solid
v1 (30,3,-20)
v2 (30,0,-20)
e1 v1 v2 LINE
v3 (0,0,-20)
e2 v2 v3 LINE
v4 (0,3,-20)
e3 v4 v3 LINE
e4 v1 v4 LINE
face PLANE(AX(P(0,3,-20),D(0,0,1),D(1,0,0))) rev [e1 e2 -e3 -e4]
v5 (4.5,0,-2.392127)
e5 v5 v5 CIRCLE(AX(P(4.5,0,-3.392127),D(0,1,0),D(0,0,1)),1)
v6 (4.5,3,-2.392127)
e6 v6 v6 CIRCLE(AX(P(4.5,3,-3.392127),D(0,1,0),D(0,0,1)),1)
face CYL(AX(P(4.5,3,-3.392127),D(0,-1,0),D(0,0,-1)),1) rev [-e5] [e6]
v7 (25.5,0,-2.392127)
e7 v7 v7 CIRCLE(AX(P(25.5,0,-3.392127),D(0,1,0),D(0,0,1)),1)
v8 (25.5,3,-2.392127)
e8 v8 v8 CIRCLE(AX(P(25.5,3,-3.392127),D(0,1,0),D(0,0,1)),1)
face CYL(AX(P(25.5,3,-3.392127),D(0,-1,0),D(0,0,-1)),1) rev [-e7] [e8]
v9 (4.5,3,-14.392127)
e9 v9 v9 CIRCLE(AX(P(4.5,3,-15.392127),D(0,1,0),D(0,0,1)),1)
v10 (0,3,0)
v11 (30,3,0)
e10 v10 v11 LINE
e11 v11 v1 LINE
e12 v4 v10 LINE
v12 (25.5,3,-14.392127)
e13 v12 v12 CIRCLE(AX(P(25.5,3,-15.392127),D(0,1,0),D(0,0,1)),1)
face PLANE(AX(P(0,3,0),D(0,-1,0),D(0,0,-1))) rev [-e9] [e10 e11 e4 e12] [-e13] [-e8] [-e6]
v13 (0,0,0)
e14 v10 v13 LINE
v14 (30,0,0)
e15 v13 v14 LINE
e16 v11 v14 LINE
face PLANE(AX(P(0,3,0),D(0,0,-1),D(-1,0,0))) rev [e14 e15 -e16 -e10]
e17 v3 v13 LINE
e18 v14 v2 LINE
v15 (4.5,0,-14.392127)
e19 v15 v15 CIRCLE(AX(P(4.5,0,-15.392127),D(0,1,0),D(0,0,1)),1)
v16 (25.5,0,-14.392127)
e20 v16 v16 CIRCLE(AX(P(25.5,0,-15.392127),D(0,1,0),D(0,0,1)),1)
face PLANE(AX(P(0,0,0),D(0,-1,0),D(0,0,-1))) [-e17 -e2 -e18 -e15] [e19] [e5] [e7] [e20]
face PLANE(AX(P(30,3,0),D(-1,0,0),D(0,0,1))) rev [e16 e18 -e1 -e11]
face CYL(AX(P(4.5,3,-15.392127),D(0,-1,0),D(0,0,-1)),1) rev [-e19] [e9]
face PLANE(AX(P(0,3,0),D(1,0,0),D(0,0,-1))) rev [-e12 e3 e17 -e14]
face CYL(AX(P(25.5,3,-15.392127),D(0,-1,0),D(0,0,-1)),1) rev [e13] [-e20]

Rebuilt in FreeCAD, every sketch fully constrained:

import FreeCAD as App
import Part
import Sketcher
Q = App.Units.Quantity


def add_polygon(sketch, points):
    """Adds a closed chain of lines whose ends are joined by coincident constraints."""
    first, n = sketch.GeometryCount, len(points)
    for a, b in zip(points, points[1:] + points[:1]):
        sketch.addGeometry(Part.LineSegment(App.Vector(*a, 0), App.Vector(*b, 0)), False)
    for i in range(n):
        sketch.addConstraint(Sketcher.Constraint("Coincident", first + i, 2, first + (i + 1) % n, 1))

doc = App.newDocument("Part")
body = doc.addObject("PartDesign::Body", "Body")

sketch1 = body.newObject("Sketcher::SketchObject", "Sketch")
sketch1.AttachmentSupport = (doc.getObject("XZ_Plane"), [""])
sketch1.MapMode = "FlatFace"
add_polygon(sketch1, [(0, -20), (0, 0), (30, 0), (30, -20)])
sketch1.addGeometry(Part.Circle(App.Vector(4.5, -3.4, 0), App.Vector(0, 0, 1), 1), False)
sketch1.addGeometry(Part.Circle(App.Vector(25.5, -3.4, 0), App.Vector(0, 0, 1), 1), False)
sketch1.addGeometry(Part.Circle(App.Vector(4.5, -15.4, 0), App.Vector(0, 0, 1), 1), False)
sketch1.addGeometry(Part.Circle(App.Vector(25.5, -15.4, 0), App.Vector(0, 0, 1), 1), False)
sketch1.addConstraint([
    Sketcher.Constraint("Vertical", 0),
    Sketcher.Constraint("Horizontal", 1),
    Sketcher.Constraint("Vertical", 2),
    Sketcher.Constraint("Horizontal", 3),
    Sketcher.Constraint("Coincident", 0, 2, -1, 1),
    Sketcher.Constraint("Equal", 4, 5),
    Sketcher.Constraint("Equal", 5, 6),
    Sketcher.Constraint("Equal", 6, 7),
    Sketcher.Constraint("Horizontal", 4, 3, 5, 3),
    Sketcher.Constraint("Horizontal", 6, 3, 7, 3),
    Sketcher.Constraint("Vertical", 4, 3, 6, 3),
    Sketcher.Constraint("Vertical", 5, 3, 7, 3),
    Sketcher.Constraint("Diameter", 4, Q("2 mm")),
    Sketcher.Constraint("DistanceX", 1, 1, 1, 2, Q("30 mm")),
    Sketcher.Constraint("DistanceY", 0, 1, 0, 2, Q("20 mm")),
    Sketcher.Constraint("DistanceX", 4, 3, 5, 3, Q("21 mm")),
    Sketcher.Constraint("DistanceY", 6, 3, 4, 3, Q("12 mm")),
    Sketcher.Constraint("DistanceX", -1, 1, 4, 3, Q("4.5 mm")),
    Sketcher.Constraint("DistanceY", 4, 3, -1, 1, Q("3.392127 mm")),
])
pad1 = body.newObject("PartDesign::Pad", "Pad")
pad1.Profile = sketch1
pad1.Length = 3
pad1.Reversed = True

doc.recompute()
